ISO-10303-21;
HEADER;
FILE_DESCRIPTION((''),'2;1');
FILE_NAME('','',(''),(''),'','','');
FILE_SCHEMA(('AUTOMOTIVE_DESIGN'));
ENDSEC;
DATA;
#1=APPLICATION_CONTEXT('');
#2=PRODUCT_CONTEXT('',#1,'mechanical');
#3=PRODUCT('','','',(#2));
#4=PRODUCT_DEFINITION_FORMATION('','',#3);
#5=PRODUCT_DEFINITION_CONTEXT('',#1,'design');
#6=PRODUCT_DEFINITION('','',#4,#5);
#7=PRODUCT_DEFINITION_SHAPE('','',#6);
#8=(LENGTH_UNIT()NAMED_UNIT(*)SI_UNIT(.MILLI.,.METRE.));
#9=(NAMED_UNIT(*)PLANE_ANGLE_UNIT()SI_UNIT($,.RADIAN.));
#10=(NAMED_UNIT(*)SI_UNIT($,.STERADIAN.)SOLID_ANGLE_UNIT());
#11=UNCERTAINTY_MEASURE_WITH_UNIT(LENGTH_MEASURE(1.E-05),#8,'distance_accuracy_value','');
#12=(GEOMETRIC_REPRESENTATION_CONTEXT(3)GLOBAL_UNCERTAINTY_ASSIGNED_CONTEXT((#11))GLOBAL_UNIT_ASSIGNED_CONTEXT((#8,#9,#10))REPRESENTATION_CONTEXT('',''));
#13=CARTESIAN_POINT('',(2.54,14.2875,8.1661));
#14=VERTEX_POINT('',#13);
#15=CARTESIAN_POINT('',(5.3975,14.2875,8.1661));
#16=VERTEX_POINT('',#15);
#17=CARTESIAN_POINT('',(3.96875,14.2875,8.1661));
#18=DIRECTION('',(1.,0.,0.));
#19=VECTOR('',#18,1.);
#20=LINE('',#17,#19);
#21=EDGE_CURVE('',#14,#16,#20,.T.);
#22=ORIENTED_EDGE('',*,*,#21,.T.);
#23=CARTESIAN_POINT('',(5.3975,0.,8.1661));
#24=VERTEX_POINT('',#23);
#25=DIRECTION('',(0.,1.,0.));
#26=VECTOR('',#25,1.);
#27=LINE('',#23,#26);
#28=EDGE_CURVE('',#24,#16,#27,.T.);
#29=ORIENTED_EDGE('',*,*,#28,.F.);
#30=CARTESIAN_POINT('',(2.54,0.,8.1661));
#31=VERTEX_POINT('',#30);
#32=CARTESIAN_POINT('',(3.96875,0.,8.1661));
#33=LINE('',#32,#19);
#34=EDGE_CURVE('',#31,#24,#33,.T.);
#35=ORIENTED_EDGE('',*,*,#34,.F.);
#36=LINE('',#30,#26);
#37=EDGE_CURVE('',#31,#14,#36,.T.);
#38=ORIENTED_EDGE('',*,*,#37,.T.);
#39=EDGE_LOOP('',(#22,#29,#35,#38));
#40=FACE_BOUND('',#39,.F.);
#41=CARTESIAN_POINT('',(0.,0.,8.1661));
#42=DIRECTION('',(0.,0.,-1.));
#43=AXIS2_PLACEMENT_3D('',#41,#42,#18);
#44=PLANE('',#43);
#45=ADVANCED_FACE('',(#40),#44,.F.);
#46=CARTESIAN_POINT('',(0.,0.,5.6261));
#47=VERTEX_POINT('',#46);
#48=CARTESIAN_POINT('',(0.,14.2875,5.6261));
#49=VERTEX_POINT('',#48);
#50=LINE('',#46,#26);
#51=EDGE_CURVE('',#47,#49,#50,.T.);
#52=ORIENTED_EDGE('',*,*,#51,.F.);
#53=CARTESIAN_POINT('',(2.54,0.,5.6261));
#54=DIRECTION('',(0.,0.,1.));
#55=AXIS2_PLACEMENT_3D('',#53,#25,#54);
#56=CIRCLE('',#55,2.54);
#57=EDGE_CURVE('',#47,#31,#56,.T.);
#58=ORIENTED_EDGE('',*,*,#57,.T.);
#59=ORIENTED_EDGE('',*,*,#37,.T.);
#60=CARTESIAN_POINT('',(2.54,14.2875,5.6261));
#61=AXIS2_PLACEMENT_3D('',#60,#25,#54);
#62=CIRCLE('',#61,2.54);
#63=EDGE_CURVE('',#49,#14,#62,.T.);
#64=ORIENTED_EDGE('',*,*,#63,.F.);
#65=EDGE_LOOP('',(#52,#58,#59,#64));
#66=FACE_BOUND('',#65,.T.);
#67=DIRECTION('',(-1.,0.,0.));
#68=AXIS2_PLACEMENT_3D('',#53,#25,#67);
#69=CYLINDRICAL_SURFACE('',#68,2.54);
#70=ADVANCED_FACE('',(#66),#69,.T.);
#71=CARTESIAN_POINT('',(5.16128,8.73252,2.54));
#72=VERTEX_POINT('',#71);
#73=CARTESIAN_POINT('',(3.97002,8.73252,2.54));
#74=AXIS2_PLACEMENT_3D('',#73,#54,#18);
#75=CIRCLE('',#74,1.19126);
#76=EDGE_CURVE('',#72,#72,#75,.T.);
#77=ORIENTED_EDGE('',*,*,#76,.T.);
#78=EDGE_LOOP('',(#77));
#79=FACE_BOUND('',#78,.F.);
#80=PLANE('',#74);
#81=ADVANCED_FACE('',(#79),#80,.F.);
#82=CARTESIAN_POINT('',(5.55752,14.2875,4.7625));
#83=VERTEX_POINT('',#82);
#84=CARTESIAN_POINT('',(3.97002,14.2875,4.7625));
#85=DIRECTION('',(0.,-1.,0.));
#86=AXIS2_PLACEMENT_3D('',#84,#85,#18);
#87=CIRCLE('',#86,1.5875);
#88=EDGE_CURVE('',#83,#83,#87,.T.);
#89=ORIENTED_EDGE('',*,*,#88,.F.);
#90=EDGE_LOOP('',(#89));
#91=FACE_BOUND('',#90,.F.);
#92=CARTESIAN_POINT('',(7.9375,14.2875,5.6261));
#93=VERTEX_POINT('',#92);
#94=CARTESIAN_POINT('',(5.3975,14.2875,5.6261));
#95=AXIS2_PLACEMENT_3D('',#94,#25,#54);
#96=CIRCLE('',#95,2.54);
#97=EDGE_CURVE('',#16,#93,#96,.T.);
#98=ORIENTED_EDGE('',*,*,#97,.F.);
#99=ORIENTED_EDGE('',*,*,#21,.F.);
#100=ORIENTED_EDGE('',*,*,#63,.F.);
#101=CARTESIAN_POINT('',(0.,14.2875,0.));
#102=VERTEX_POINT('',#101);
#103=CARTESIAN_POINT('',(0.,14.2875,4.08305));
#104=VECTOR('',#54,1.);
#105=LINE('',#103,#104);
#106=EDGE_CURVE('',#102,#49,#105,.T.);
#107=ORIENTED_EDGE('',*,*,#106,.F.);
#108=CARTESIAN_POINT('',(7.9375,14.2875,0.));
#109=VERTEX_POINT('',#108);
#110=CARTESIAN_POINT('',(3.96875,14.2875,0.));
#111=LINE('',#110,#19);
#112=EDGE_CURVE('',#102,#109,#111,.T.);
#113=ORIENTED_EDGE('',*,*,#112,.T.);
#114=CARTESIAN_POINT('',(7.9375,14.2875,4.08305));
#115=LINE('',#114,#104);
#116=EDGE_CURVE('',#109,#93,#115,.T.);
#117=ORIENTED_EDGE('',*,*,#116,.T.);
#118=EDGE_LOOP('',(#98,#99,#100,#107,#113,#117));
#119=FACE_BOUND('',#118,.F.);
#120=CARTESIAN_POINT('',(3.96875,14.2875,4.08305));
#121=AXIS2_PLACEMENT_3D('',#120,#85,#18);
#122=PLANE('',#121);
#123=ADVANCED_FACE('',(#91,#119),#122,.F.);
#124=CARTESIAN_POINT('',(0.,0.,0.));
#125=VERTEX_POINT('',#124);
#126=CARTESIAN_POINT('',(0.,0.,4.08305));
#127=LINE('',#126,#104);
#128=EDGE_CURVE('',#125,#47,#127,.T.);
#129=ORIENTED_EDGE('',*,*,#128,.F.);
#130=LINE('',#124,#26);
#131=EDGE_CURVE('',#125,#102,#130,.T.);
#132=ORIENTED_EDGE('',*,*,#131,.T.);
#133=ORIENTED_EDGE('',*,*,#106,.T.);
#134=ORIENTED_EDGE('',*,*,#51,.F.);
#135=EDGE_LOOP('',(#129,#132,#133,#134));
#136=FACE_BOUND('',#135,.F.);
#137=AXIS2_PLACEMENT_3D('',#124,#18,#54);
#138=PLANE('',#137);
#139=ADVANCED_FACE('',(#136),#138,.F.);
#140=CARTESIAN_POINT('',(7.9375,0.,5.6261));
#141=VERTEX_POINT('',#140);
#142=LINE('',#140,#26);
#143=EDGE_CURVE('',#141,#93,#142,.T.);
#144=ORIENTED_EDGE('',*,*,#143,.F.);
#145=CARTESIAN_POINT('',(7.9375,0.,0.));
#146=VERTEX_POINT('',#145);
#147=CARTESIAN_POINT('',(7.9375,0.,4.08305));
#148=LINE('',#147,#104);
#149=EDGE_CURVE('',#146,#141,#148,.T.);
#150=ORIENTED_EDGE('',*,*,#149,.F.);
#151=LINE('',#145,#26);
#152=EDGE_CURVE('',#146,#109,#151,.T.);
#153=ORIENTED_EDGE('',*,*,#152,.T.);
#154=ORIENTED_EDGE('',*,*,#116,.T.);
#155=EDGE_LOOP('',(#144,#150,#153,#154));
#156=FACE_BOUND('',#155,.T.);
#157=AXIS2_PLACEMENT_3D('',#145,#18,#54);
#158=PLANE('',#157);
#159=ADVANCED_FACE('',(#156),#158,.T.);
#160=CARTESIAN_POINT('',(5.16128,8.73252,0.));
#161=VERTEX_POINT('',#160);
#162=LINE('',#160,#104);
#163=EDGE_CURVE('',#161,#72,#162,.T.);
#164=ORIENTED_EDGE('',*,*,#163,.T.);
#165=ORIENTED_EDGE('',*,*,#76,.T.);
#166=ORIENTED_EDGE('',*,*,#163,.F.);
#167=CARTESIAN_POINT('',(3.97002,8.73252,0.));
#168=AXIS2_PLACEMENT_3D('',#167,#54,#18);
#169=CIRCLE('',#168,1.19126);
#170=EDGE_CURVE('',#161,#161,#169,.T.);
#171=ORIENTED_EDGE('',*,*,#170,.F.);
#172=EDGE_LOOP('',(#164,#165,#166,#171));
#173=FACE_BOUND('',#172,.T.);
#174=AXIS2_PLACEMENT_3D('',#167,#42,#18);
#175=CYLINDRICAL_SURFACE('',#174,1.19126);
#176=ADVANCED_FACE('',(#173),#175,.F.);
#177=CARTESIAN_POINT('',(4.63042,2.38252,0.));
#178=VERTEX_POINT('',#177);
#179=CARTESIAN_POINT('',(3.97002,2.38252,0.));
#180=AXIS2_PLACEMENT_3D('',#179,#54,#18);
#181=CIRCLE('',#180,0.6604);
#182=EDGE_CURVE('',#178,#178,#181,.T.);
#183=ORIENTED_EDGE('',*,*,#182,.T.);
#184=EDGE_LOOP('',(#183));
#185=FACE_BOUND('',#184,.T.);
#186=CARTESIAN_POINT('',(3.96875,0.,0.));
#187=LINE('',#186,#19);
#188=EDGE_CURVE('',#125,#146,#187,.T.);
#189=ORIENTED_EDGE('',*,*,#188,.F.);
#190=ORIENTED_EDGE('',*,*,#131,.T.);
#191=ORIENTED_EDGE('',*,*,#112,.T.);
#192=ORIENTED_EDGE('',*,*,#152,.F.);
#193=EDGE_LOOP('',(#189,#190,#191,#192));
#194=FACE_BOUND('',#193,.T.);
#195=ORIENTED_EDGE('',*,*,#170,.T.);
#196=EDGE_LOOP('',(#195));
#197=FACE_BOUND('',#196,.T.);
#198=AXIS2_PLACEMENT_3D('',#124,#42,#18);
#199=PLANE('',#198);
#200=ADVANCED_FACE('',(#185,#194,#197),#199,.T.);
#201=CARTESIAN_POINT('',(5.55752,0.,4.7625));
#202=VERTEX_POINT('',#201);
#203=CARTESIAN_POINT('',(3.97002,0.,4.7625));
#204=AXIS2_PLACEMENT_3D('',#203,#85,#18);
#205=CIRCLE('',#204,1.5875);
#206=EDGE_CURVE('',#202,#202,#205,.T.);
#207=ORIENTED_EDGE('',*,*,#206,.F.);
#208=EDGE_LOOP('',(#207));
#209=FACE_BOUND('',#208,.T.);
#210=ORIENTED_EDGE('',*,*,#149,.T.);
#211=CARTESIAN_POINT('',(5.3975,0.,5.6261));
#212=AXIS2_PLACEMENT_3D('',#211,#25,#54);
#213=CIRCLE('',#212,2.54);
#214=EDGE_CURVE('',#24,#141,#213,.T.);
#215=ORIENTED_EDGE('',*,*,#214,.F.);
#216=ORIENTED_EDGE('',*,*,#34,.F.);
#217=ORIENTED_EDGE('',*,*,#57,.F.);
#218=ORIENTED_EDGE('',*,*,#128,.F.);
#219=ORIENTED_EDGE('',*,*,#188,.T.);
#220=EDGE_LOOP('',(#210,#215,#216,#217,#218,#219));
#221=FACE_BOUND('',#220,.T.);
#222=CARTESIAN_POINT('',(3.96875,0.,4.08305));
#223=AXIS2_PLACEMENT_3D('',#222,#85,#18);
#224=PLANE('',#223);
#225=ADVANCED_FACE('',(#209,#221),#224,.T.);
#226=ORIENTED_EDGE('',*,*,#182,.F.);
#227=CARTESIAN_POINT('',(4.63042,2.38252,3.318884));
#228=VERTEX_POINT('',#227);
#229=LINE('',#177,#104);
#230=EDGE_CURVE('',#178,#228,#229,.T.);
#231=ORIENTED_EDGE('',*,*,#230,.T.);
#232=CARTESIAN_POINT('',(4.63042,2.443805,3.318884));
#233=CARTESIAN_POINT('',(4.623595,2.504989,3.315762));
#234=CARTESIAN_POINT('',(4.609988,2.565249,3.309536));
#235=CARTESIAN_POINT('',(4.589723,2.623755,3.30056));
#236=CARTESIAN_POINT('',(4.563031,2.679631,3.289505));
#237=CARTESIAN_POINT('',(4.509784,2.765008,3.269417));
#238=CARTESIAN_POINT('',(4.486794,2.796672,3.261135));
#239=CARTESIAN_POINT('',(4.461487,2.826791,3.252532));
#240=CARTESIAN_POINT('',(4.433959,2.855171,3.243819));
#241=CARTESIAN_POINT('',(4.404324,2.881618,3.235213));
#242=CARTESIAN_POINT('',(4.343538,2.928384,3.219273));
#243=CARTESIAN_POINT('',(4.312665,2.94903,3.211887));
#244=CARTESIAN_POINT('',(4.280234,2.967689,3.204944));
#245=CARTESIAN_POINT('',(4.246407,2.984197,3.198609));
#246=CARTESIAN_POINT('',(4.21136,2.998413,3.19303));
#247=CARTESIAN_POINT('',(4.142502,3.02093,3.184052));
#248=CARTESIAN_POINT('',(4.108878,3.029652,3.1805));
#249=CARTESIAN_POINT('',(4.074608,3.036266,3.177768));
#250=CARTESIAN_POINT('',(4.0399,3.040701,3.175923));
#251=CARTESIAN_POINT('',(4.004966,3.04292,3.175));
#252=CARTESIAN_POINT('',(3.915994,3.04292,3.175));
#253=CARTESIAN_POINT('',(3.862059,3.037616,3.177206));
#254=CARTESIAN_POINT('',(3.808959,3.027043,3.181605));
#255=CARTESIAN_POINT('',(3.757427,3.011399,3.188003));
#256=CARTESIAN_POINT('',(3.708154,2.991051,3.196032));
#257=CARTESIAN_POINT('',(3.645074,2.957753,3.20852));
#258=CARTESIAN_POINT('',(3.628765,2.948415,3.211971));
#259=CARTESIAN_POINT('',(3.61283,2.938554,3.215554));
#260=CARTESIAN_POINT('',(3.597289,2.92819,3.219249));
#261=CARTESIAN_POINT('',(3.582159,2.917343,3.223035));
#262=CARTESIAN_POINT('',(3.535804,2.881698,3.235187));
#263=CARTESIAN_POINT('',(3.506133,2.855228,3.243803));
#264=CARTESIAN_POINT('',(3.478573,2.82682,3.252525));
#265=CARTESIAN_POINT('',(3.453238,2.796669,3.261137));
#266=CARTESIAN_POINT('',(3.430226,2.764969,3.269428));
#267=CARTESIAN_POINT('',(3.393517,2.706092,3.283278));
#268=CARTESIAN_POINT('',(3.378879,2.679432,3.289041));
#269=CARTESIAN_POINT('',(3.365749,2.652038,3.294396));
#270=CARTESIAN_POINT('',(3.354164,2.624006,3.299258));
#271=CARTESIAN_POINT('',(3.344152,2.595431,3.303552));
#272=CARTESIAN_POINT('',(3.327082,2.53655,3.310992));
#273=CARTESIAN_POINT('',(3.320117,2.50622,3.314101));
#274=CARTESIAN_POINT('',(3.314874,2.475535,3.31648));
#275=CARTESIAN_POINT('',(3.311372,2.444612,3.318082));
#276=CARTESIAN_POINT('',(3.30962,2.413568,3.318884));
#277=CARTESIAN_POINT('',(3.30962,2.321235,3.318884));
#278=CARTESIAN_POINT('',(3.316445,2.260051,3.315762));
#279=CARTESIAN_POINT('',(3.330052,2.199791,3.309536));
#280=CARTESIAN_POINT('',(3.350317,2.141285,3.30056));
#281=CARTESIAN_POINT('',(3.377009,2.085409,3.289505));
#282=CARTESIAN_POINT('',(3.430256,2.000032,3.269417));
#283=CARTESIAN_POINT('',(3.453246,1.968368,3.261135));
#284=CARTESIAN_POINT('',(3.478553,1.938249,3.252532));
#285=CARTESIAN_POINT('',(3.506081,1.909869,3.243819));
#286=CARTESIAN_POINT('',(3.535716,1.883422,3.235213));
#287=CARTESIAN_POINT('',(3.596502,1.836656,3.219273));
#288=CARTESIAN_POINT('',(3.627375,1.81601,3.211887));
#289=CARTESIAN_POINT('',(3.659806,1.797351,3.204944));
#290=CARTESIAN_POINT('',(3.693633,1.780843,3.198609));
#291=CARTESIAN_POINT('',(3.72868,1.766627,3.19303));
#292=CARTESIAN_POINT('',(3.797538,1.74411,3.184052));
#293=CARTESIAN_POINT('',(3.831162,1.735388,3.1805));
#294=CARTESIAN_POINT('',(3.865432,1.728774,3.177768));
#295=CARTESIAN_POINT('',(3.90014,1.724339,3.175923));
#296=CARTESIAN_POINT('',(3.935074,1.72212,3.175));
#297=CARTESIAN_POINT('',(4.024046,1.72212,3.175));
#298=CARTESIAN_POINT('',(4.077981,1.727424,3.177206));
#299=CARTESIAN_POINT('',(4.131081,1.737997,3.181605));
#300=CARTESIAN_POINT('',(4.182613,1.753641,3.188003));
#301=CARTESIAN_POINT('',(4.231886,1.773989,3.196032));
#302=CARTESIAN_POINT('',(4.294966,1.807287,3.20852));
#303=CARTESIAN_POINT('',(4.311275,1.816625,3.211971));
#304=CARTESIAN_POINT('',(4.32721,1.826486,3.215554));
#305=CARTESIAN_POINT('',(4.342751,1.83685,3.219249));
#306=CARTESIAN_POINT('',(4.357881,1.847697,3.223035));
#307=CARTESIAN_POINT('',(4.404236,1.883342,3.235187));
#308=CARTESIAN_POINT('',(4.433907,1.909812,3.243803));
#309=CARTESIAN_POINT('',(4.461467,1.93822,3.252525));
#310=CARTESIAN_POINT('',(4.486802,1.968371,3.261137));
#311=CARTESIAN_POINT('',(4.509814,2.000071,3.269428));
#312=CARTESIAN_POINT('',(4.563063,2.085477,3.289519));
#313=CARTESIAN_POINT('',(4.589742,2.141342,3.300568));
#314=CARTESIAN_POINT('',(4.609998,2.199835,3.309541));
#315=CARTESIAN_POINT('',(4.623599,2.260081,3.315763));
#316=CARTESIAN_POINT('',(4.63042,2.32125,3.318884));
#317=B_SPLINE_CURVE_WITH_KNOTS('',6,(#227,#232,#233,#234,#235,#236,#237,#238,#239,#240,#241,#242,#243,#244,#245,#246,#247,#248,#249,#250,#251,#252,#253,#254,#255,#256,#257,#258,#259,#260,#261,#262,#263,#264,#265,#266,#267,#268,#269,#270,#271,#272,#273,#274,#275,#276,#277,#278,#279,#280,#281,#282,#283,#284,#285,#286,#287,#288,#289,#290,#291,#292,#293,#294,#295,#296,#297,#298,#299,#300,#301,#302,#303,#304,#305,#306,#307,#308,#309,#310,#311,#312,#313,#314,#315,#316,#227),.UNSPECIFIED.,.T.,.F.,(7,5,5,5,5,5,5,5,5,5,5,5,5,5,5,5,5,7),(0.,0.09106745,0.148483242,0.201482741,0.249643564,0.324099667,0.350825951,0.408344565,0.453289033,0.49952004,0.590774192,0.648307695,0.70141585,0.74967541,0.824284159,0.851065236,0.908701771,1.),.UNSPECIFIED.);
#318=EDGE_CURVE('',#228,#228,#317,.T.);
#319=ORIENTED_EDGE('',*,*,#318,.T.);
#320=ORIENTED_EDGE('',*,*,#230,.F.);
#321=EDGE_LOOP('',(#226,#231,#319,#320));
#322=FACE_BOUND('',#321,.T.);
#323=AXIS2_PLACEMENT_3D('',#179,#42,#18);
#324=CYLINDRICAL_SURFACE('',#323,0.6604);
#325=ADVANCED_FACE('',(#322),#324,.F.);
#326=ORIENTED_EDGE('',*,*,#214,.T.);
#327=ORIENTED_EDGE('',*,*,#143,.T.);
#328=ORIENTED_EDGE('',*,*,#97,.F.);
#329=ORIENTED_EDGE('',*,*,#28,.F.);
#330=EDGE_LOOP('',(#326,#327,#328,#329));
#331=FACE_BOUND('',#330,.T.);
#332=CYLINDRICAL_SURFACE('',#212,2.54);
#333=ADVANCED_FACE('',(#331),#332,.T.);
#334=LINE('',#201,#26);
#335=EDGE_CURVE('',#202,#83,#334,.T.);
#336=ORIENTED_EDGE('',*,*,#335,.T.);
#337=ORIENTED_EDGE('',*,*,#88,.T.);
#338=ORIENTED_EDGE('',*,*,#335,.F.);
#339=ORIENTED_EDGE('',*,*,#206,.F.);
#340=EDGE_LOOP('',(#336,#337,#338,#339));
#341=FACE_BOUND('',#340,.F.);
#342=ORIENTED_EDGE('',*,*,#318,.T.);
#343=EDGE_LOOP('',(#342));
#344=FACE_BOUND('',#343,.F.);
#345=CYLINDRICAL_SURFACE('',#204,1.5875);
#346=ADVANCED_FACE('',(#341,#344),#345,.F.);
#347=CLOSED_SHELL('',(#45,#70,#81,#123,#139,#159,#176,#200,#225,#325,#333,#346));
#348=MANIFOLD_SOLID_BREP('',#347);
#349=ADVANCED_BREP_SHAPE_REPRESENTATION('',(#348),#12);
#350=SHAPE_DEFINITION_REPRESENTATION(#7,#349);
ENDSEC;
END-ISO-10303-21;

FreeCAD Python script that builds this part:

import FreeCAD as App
import Part
import Sketcher
Q = App.Units.Quantity


def edges_at(feature, points):
    """Names of the edges that pass closest to the given points."""
    edges = feature.Shape.Edges
    near = lambda p: min(range(len(edges)), key=lambda i: edges[i].distToShape(Part.Vertex(*p))[0])
    return sorted({f"Edge{near(p) + 1}" for p in points})

doc = App.newDocument("Part")
body = doc.addObject("PartDesign::Body", "Body")

# Sketch on XZ plane
sketch1 = body.newObject("Sketcher::SketchObject", "Sketch")
sketch1.AttachmentSupport = (doc.getObject("XZ_Plane"), [""])
sketch1.MapMode = "FlatFace"
sketch1.addGeometry([
    Part.LineSegment(App.Vector(0, 8.2, 0), App.Vector(0, 0, 0)),  # 0
    Part.LineSegment(App.Vector(0, 0, 0), App.Vector(7.9, 0, 0)),  # 1
    Part.LineSegment(App.Vector(7.9, 0, 0), App.Vector(7.9, 8.2, 0)),  # 2
    Part.LineSegment(App.Vector(7.9, 8.2, 0), App.Vector(0, 8.2, 0)),  # 3
    Part.Circle(App.Vector(4, 4.8, 0), App.Vector(0, 0, 1), 1.6),  # 4
], False)
sketch1.addConstraint([
    Sketcher.Constraint("Coincident", 0, 2, 1, 1),
    Sketcher.Constraint("Coincident", 1, 2, 2, 1),
    Sketcher.Constraint("Coincident", 2, 2, 3, 1),
    Sketcher.Constraint("Coincident", 3, 2, 0, 1),
    Sketcher.Constraint("Vertical", 0),
    Sketcher.Constraint("Horizontal", 1),
    Sketcher.Constraint("Vertical", 2),
    Sketcher.Constraint("Horizontal", 3),
    Sketcher.Constraint("Coincident", 0, 2, -1, 1),
    Sketcher.Constraint("Diameter", 4, Q("0.125 in")),
    Sketcher.Constraint("DistanceX", 1, 1, 1, 2, Q("0.3125 in")),
    Sketcher.Constraint("DistanceY", 0, 2, 0, 1, Q("0.3215 in")),
    Sketcher.Constraint("DistanceY", -1, 1, 4, 3, Q("0.1875 in")),
    Sketcher.Constraint("DistanceX", -1, 1, 4, 3, Q("0.1563 in")),
])
pad1 = body.newObject("PartDesign::Pad", "Pad")
pad1.Profile = sketch1
pad1.Length = Q("0.5625 in")
pad1.Reversed = True
doc.recompute()

fillet = body.newObject("PartDesign::Fillet", "Fillet")
fillet.Base = (pad1, edges_at(pad1, [(0, 7.144, 8.166), (7.938, 7.144, 8.166)]))
fillet.Radius = Q("0.1 in")

# Sketch on XY plane
sketch2 = body.newObject("Sketcher::SketchObject", "Sketch001")
sketch2.AttachmentSupport = (doc.getObject("XY_Plane"), [""])
sketch2.MapMode = "FlatFace"
sketch2.addGeometry(Part.Circle(App.Vector(4, 8.7, 0), App.Vector(0, 0, 1), 1.2), False)
sketch2.addConstraint([
    Sketcher.Constraint("Diameter", 0, Q("0.0938 in")),
    Sketcher.Constraint("DistanceX", -1, 1, 0, 3, Q("0.1563 in")),
    Sketcher.Constraint("DistanceY", -1, 1, 0, 3, Q("0.3438 in")),
])
pocket1 = body.newObject("PartDesign::Pocket", "Pocket")
pocket1.Profile = sketch2
pocket1.Length = Q("0.1 in")
pocket1.Reversed = True

# Sketch on XY plane
sketch3 = body.newObject("Sketcher::SketchObject", "Sketch002")
sketch3.AttachmentSupport = (doc.getObject("XY_Plane"), [""])
sketch3.MapMode = "FlatFace"
sketch3.addGeometry(Part.Circle(App.Vector(4, 2.4, 0), App.Vector(0, 0, 1), 0.7), False)
sketch3.addConstraint([
    Sketcher.Constraint("Diameter", 0, Q("0.052 in")),
    Sketcher.Constraint("DistanceX", -1, 1, 0, 3, Q("0.1563 in")),
    Sketcher.Constraint("DistanceY", -1, 1, 0, 3, Q("0.0938 in")),
])
pocket2 = body.newObject("PartDesign::Pocket", "Pocket001")
pocket2.Profile = sketch3
pocket2.Length = Q("0.15 in")
pocket2.Reversed = True

doc.recompute()
